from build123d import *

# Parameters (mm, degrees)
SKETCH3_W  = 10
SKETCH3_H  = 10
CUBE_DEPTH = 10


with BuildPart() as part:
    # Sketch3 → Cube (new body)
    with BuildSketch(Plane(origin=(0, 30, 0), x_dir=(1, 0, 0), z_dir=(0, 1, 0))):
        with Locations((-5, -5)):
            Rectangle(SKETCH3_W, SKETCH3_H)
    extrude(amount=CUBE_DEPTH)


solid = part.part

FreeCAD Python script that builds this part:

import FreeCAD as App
import Part
import Sketcher
from FreeCAD import Vector

doc = App.newDocument("Part")
body = doc.addObject("PartDesign::Body", "Body")

# Sketch on XZ plane
sketch1 = body.newObject("Sketcher::SketchObject", "Sketch")
sketch1.AttachmentSupport = (doc.getObject("XZ_Plane"), [""])
sketch1.MapMode = "FlatFace"
sketch1.AttachmentOffset = App.Placement(Vector(0, 0, -30), App.Rotation())
sketch1.addGeometry([
    Part.LineSegment(Vector(-10, 0, 0), Vector(-10, 10, 0)),
    Part.LineSegment(Vector(-10, 10, 0), Vector(0, 10, 0)),
    Part.LineSegment(Vector(0, 10, 0), Vector(0, 0, 0)),
    Part.LineSegment(Vector(0, 0, 0), Vector(-10, 0, 0)),
], False)
sketch1.addConstraint([
    Sketcher.Constraint("Coincident", 0, 2, 1, 1),
    Sketcher.Constraint("Coincident", 1, 2, 2, 1),
    Sketcher.Constraint("Coincident", 2, 2, 3, 1),
    Sketcher.Constraint("Coincident", 3, 2, 0, 1),
    Sketcher.Constraint("Vertical", 0),
    Sketcher.Constraint("Horizontal", 1),
    Sketcher.Constraint("Vertical", 2),
    Sketcher.Constraint("Horizontal", 3),
    Sketcher.Constraint("Coincident", 2, 2, -1, 1),
    Sketcher.Constraint("Equal", 3, 0),
    Sketcher.Constraint("DistanceX", 1, 1, 1, 2, 10.0),
])
pad1 = body.newObject("PartDesign::Pad", "Pad")
pad1.Profile = sketch1
pad1.Length = 10
pad1.Reversed = True

doc.recompute()
